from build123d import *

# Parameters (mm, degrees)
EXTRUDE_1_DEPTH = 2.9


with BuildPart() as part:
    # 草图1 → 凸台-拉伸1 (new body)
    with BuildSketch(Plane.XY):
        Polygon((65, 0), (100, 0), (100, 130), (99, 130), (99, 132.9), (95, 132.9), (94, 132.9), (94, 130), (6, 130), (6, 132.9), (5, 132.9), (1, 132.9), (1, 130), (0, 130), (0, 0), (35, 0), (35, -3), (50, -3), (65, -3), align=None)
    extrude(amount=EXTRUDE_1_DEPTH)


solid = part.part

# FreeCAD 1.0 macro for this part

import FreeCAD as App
import Part
import Sketcher
Q = App.Units.Quantity


def add_polygon(sketch, points):
    """Adds a closed chain of lines whose ends are joined by coincident constraints."""
    first, n = sketch.GeometryCount, len(points)
    for a, b in zip(points, points[1:] + points[:1]):
        sketch.addGeometry(Part.LineSegment(App.Vector(*a, 0), App.Vector(*b, 0)), False)
    for i in range(n):
        sketch.addConstraint(Sketcher.Constraint("Coincident", first + i, 2, first + (i + 1) % n, 1))

doc = App.newDocument("Part")
params = doc.addObject("Spreadsheet::Sheet", "Params")
for row, (alias, value) in enumerate([
    ("sketch1_width", "35 mm"),
    ("sketch1_width2", "1 mm"),
    ("sketch1_width3", "5 mm"),
    ("sketch1_width4", "88 mm"),
    ("sketch1_height", "130 mm"),
    ("pad1_length", "2.9 mm"),
], start=1):
    params.set(f"A{row}", alias)
    params.set(f"B{row}", "=" + value)
    params.setAlias(f"B{row}", alias)

body = doc.addObject("PartDesign::Body", "Body")

sketch1 = body.newObject("Sketcher::SketchObject", "Sketch")
sketch1.AttachmentSupport = (doc.getObject("XY_Plane"), [""])
sketch1.MapMode = "FlatFace"
add_polygon(sketch1, [(65, 0), (100, 0), (100, 130), (99, 130), (99, 132.9), (94, 132.9), (94, 130), (6, 130), (6, 132.9), (1, 132.9), (1, 130), (0, 130), (0, 0), (35, 0), (35, -3), (65, -3)])
sketch1.addConstraint([
    Sketcher.Constraint("Horizontal", 0),
    Sketcher.Constraint("Vertical", 1),
    Sketcher.Constraint("Horizontal", 2),
    Sketcher.Constraint("Vertical", 3),
    Sketcher.Constraint("Horizontal", 4),
    Sketcher.Constraint("Vertical", 5),
    Sketcher.Constraint("Horizontal", 6),
    Sketcher.Constraint("Vertical", 7),
    Sketcher.Constraint("Horizontal", 8),
    Sketcher.Constraint("Vertical", 9),
    Sketcher.Constraint("Horizontal", 10),
    Sketcher.Constraint("Vertical", 11),
    Sketcher.Constraint("Horizontal", 12),
    Sketcher.Constraint("Vertical", 13),
    Sketcher.Constraint("Horizontal", 14),
    Sketcher.Constraint("Vertical", 15),
    Sketcher.Constraint("Coincident", 11, 2, -1, 1),
    Sketcher.Constraint("PointOnObject", 0, 2, -1),
    Sketcher.Constraint("Horizontal", 2, 2, 5, 2),
    Sketcher.Constraint("Horizontal", 4, 2, 7, 2),
    Sketcher.Constraint("Horizontal", 6, 2, 9, 2),
    Sketcher.Constraint("Equal", 4, 8),
    Sketcher.Constraint("Equal", 2, 10),
    Sketcher.Constraint("Equal", 0, 12),
    Sketcher.Constraint("DistanceX", 0, 1, 0, 2, Q("35 mm")),
    Sketcher.Constraint("DistanceX", 2, 2, 2, 1, Q("1 mm")),
    Sketcher.Constraint("DistanceX", 4, 2, 4, 1, Q("5 mm")),
    Sketcher.Constraint("DistanceX", 6, 2, 6, 1, Q("88 mm")),
    Sketcher.Constraint("DistanceY", 1, 1, 1, 2, Q("130 mm")),
    Sketcher.Constraint("DistanceY", 13, 2, 13, 1, Q("3 mm")),
    Sketcher.Constraint("DistanceY", 3, 1, 3, 2, Q("2.9 mm")),
])
sketch1.setExpression("Constraints[40]", "Params.sketch1_width")
sketch1.setExpression("Constraints[41]", "Params.sketch1_width2")
sketch1.setExpression("Constraints[42]", "Params.sketch1_width3")
sketch1.setExpression("Constraints[43]", "Params.sketch1_width4")
sketch1.setExpression("Constraints[44]", "Params.sketch1_height")
pad1 = body.newObject("PartDesign::Pad", "Pad")
pad1.Profile = sketch1
pad1.setExpression("Length", "Params.pad1_length")

doc.recompute()
